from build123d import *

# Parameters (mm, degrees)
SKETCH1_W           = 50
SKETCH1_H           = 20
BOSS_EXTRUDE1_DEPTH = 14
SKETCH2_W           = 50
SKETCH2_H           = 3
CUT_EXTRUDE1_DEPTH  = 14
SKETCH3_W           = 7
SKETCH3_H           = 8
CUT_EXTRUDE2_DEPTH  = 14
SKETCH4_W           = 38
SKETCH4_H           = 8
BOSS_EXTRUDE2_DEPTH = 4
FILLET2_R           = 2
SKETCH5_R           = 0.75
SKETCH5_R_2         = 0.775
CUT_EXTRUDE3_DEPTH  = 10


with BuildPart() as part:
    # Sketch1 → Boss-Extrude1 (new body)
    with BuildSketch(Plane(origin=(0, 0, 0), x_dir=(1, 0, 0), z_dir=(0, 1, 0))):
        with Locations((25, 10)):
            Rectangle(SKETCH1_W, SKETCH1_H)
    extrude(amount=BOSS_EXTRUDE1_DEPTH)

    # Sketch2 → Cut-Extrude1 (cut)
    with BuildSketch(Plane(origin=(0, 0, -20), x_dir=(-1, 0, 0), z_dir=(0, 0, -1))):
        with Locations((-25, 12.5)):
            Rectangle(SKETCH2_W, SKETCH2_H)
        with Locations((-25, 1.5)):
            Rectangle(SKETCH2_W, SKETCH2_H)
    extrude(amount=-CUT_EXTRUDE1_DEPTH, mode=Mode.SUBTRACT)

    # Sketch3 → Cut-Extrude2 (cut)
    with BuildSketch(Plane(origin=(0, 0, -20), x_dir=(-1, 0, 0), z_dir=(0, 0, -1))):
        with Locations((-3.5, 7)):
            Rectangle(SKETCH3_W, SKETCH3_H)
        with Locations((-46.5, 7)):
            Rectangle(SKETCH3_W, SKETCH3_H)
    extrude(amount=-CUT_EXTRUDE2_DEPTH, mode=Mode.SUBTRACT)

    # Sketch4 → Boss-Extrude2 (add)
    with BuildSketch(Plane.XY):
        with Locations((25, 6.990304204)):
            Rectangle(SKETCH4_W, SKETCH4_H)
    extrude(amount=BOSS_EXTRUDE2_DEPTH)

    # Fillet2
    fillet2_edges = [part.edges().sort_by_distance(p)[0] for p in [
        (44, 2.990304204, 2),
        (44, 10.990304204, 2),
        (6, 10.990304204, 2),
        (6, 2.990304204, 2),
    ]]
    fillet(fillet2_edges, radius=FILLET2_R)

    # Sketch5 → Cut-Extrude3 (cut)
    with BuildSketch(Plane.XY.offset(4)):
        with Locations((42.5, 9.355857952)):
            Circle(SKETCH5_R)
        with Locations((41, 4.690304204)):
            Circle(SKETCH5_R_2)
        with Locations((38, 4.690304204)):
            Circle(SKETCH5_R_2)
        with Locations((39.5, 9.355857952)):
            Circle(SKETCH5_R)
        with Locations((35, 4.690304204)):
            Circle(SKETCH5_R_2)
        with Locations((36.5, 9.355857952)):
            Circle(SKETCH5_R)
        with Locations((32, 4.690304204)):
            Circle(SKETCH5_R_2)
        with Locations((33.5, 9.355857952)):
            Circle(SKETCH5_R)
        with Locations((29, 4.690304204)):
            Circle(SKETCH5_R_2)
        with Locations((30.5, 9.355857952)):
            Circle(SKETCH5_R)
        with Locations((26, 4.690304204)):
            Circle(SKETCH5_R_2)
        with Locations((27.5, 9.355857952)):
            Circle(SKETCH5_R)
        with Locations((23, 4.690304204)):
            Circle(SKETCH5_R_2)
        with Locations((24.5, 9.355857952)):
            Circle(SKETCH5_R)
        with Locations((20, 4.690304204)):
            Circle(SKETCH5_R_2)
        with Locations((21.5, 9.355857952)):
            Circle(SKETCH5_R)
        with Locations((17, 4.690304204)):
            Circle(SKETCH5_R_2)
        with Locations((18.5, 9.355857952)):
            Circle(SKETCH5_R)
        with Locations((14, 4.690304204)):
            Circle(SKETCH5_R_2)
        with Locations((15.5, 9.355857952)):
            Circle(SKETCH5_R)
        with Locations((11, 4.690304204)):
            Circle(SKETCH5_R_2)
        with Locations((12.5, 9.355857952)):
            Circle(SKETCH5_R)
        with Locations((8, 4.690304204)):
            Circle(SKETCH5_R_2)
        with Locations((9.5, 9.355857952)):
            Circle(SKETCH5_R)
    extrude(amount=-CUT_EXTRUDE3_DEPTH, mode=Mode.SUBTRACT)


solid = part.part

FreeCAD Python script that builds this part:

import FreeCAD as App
import Part
import Sketcher

V = App.Vector


def edges_at(feature, points):
    """Names of the edges that pass closest to the given points."""
    edges = feature.Shape.Edges
    near = lambda p: min(range(len(edges)), key=lambda i: edges[i].distToShape(Part.Vertex(*p))[0])
    return sorted({f"Edge{near(p) + 1}" for p in points})


def add_polygon(sketch, points):
    """Adds a closed chain of lines whose ends are joined by coincident constraints."""
    first, n = sketch.GeometryCount, len(points)
    for a, b in zip(points, points[1:] + points[:1]):
        sketch.addGeometry(Part.LineSegment(App.Vector(*a, 0), App.Vector(*b, 0)), False)
    for i in range(n):
        sketch.addConstraint(Sketcher.Constraint("Coincident", first + i, 2, first + (i + 1) % n, 1))

doc = App.newDocument("Part")
body = doc.addObject("PartDesign::Body", "Body")

sketch1 = body.newObject("Sketcher::SketchObject", "Sketch")
sketch1.AttachmentSupport = (doc.getObject("XZ_Plane"), [""])
sketch1.MapMode = "FlatFace"
add_polygon(sketch1, [(0, -20), (0, 0), (50, 0), (50, -20)])
sketch1.addConstraint([
    Sketcher.Constraint("Vertical", 0),
    Sketcher.Constraint("Horizontal", 1),
    Sketcher.Constraint("Vertical", 2),
    Sketcher.Constraint("Horizontal", 3),
    Sketcher.Constraint("Coincident", 0, 2, -1, 1),
    Sketcher.Constraint("DistanceX", 1, 1, 1, 2, 50.0),
    Sketcher.Constraint("DistanceY", 0, 1, 0, 2, 20.0),
])
pad1 = body.newObject("PartDesign::Pad", "Pad")
pad1.Profile = sketch1
pad1.Length = 14
pad1.Reversed = True

sketch2 = body.newObject("Sketcher::SketchObject", "Sketch001")
sketch2.AttachmentSupport = (doc.getObject("XY_Plane"), [""])
sketch2.MapMode = "FlatFace"
sketch2.AttachmentOffset = App.Placement(V(0, 0, -20), App.Rotation())
add_polygon(sketch2, [(50, 14), (50, 11), (0, 11), (0, 14)])
add_polygon(sketch2, [(50, 3), (50, 0), (0, 0), (0, 3)])
sketch2.addConstraint([
    Sketcher.Constraint("Vertical", 0),
    Sketcher.Constraint("Horizontal", 1),
    Sketcher.Constraint("Vertical", 2),
    Sketcher.Constraint("Horizontal", 3),
    Sketcher.Constraint("Vertical", 4),
    Sketcher.Constraint("Horizontal", 5),
    Sketcher.Constraint("Vertical", 6),
    Sketcher.Constraint("Horizontal", 7),
    Sketcher.Constraint("Coincident", 5, 2, -1, 1),
    Sketcher.Constraint("PointOnObject", 1, 2, -2),
    Sketcher.Constraint("Vertical", 3, 2, 4, 2),
    Sketcher.Constraint("Equal", 2, 4),
    Sketcher.Constraint("DistanceX", 1, 2, 1, 1, 50.0),
    Sketcher.Constraint("DistanceY", 0, 2, 0, 1, 3.0),
    Sketcher.Constraint("DistanceY", -1, 1, 0, 2, 11.0),
])
pocket1 = body.newObject("PartDesign::Pocket", "Pocket")
pocket1.Profile = sketch2
pocket1.Length = 14
pocket1.Reversed = True

sketch3 = body.newObject("Sketcher::SketchObject", "Sketch002")
sketch3.AttachmentSupport = (doc.getObject("XY_Plane"), [""])
sketch3.MapMode = "FlatFace"
sketch3.AttachmentOffset = App.Placement(V(0, 0, -20), App.Rotation())
add_polygon(sketch3, [(7, 11), (7, 3), (0, 3), (0, 11)])
add_polygon(sketch3, [(50, 11), (50, 3), (43, 3), (43, 11)])
sketch3.addConstraint([
    Sketcher.Constraint("Vertical", 0),
    Sketcher.Constraint("Horizontal", 1),
    Sketcher.Constraint("Vertical", 2),
    Sketcher.Constraint("Horizontal", 3),
    Sketcher.Constraint("Vertical", 4),
    Sketcher.Constraint("Horizontal", 5),
    Sketcher.Constraint("Vertical", 6),
    Sketcher.Constraint("Horizontal", 7),
    Sketcher.Constraint("PointOnObject", 1, 2, -2),
    Sketcher.Constraint("Horizontal", 1, 2, 4, 2),
    Sketcher.Constraint("Horizontal", 3, 2, 6, 2),
    Sketcher.Constraint("Equal", 3, 5),
    Sketcher.Constraint("DistanceX", 1, 2, 1, 1, 7.0),
    Sketcher.Constraint("DistanceY", 0, 2, 0, 1, 8.0),
    Sketcher.Constraint("DistanceY", -1, 1, 0, 2, 3.0),
    Sketcher.Constraint("DistanceX", -1, 1, 4, 2, 50.0),
])
pocket2 = body.newObject("PartDesign::Pocket", "Pocket001")
pocket2.Profile = sketch3
pocket2.Length = 14
pocket2.Reversed = True

sketch4 = body.newObject("Sketcher::SketchObject", "Sketch003")
sketch4.AttachmentSupport = (doc.getObject("XY_Plane"), [""])
sketch4.MapMode = "FlatFace"
add_polygon(sketch4, [(6, 11), (6, 3), (44, 3), (44, 11)])
sketch4.addConstraint([
    Sketcher.Constraint("Vertical", 0),
    Sketcher.Constraint("Horizontal", 1),
    Sketcher.Constraint("Vertical", 2),
    Sketcher.Constraint("Horizontal", 3),
    Sketcher.Constraint("DistanceX", 1, 1, 1, 2, 38.0),
    Sketcher.Constraint("DistanceY", 0, 2, 0, 1, 8.0),
    Sketcher.Constraint("DistanceX", -1, 1, 0, 2, 6.0),
    Sketcher.Constraint("DistanceY", -1, 1, 0, 2, 2.990304),
])
pad2 = body.newObject("PartDesign::Pad", "Pad001")
pad2.Profile = sketch4
pad2.Length = 4
doc.recompute()

fillet = body.newObject("PartDesign::Fillet", "Fillet")
fillet.Base = (pad2, edges_at(pad2, [
    (44, 2.99, 2),
    (44, 10.99, 2),
    (6, 10.99, 2),
    (6, 2.99, 2),
]))
fillet.Radius = 2

sketch5 = body.newObject("Sketcher::SketchObject", "Sketch004")
sketch5.AttachmentSupport = (doc.getObject("XY_Plane"), [""])
sketch5.MapMode = "FlatFace"
sketch5.AttachmentOffset = App.Placement(V(0, 0, 4), App.Rotation())
sketch5.addGeometry([
    Part.Circle(V(42.5, 9.4, 0), V(0, 0, 1), 0.8),
    Part.Circle(V(41, 4.7, 0), V(0, 0, 1), 0.8),
    Part.Circle(V(38, 4.7, 0), V(0, 0, 1), 0.8),
    Part.Circle(V(39.5, 9.4, 0), V(0, 0, 1), 0.8),
    Part.Circle(V(35, 4.7, 0), V(0, 0, 1), 0.8),
    Part.Circle(V(36.5, 9.4, 0), V(0, 0, 1), 0.8),
    Part.Circle(V(32, 4.7, 0), V(0, 0, 1), 0.8),
    Part.Circle(V(33.5, 9.4, 0), V(0, 0, 1), 0.8),
    Part.Circle(V(29, 4.7, 0), V(0, 0, 1), 0.8),
    Part.Circle(V(30.5, 9.4, 0), V(0, 0, 1), 0.8),
    Part.Circle(V(26, 4.7, 0), V(0, 0, 1), 0.8),
    Part.Circle(V(27.5, 9.4, 0), V(0, 0, 1), 0.8),
    Part.Circle(V(23, 4.7, 0), V(0, 0, 1), 0.8),
    Part.Circle(V(24.5, 9.4, 0), V(0, 0, 1), 0.8),
    Part.Circle(V(20, 4.7, 0), V(0, 0, 1), 0.8),
    Part.Circle(V(21.5, 9.4, 0), V(0, 0, 1), 0.8),
    Part.Circle(V(17, 4.7, 0), V(0, 0, 1), 0.8),
    Part.Circle(V(18.5, 9.4, 0), V(0, 0, 1), 0.8),
    Part.Circle(V(14, 4.7, 0), V(0, 0, 1), 0.8),
    Part.Circle(V(15.5, 9.4, 0), V(0, 0, 1), 0.8),
    Part.Circle(V(11, 4.7, 0), V(0, 0, 1), 0.8),
    Part.Circle(V(12.5, 9.4, 0), V(0, 0, 1), 0.8),
    Part.Circle(V(8, 4.7, 0), V(0, 0, 1), 0.8),
    Part.Circle(V(9.5, 9.4, 0), V(0, 0, 1), 0.8),
], False)
sketch5.addConstraint([
    Sketcher.Constraint("Equal", 1, 2),
    Sketcher.Constraint("Equal", 0, 3),
    Sketcher.Constraint("Equal", 2, 4),
    Sketcher.Constraint("Equal", 3, 5),
    Sketcher.Constraint("Equal", 4, 6),
    Sketcher.Constraint("Equal", 5, 7),
    Sketcher.Constraint("Equal", 6, 8),
    Sketcher.Constraint("Equal", 7, 9),
    Sketcher.Constraint("Equal", 8, 10),
    Sketcher.Constraint("Equal", 9, 11),
    Sketcher.Constraint("Equal", 10, 12),
    Sketcher.Constraint("Equal", 11, 13),
    Sketcher.Constraint("Equal", 12, 14),
    Sketcher.Constraint("Equal", 13, 15),
    Sketcher.Constraint("Equal", 14, 16),
    Sketcher.Constraint("Equal", 15, 17),
    Sketcher.Constraint("Equal", 16, 18),
    Sketcher.Constraint("Equal", 17, 19),
    Sketcher.Constraint("Equal", 18, 20),
    Sketcher.Constraint("Equal", 19, 21),
    Sketcher.Constraint("Equal", 20, 22),
    Sketcher.Constraint("Equal", 21, 23),
    Sketcher.Constraint("Horizontal", 1, 3, 2, 3),
    Sketcher.Constraint("Horizontal", 0, 3, 3, 3),
    Sketcher.Constraint("Horizontal", 2, 3, 4, 3),
    Sketcher.Constraint("Horizontal", 3, 3, 5, 3),
    Sketcher.Constraint("Horizontal", 4, 3, 6, 3),
    Sketcher.Constraint("Horizontal", 5, 3, 7, 3),
    Sketcher.Constraint("Horizontal", 6, 3, 8, 3),
    Sketcher.Constraint("Horizontal", 7, 3, 9, 3),
    Sketcher.Constraint("Horizontal", 8, 3, 10, 3),
    Sketcher.Constraint("Horizontal", 9, 3, 11, 3),
    Sketcher.Constraint("Horizontal", 10, 3, 12, 3),
    Sketcher.Constraint("Horizontal", 11, 3, 13, 3),
    Sketcher.Constraint("Horizontal", 12, 3, 14, 3),
    Sketcher.Constraint("Horizontal", 13, 3, 15, 3),
    Sketcher.Constraint("Horizontal", 14, 3, 16, 3),
    Sketcher.Constraint("Horizontal", 15, 3, 17, 3),
    Sketcher.Constraint("Horizontal", 16, 3, 18, 3),
    Sketcher.Constraint("Horizontal", 17, 3, 19, 3),
    Sketcher.Constraint("Horizontal", 18, 3, 20, 3),
    Sketcher.Constraint("Horizontal", 19, 3, 21, 3),
    Sketcher.Constraint("Horizontal", 20, 3, 22, 3),
    Sketcher.Constraint("Horizontal", 21, 3, 23, 3),
    Sketcher.Constraint("Diameter", 0, 1.5),
    Sketcher.Constraint("Diameter", 1, 1.55),
    Sketcher.Constraint("DistanceX", -1, 1, 1, 3, 41.0),
    Sketcher.Constraint("DistanceX", -1, 1, 2, 3, 38.0),
    Sketcher.Constraint("DistanceX", -1, 1, 4, 3, 35.0),
    Sketcher.Constraint("DistanceX", -1, 1, 6, 3, 32.0),
    Sketcher.Constraint("DistanceX", -1, 1, 8, 3, 29.0),
    Sketcher.Constraint("DistanceX", -1, 1, 10, 3, 26.0),
    Sketcher.Constraint("DistanceX", -1, 1, 12, 3, 23.0),
    Sketcher.Constraint("DistanceX", -1, 1, 14, 3, 20.0),
    Sketcher.Constraint("DistanceX", -1, 1, 16, 3, 17.0),
    Sketcher.Constraint("DistanceX", -1, 1, 18, 3, 14.0),
    Sketcher.Constraint("DistanceX", -1, 1, 20, 3, 11.0),
    Sketcher.Constraint("DistanceX", -1, 1, 22, 3, 8.0),
    Sketcher.Constraint("DistanceX", 3, 3, 0, 3, 3.0),
    Sketcher.Constraint("DistanceX", 5, 3, 3, 3, 3.0),
    Sketcher.Constraint("DistanceX", 7, 3, 5, 3, 3.0),
    Sketcher.Constraint("DistanceX", 9, 3, 7, 3, 3.0),
    Sketcher.Constraint("DistanceX", 11, 3, 9, 3, 3.0),
    Sketcher.Constraint("DistanceX", 13, 3, 11, 3, 3.0),
    Sketcher.Constraint("DistanceX", 15, 3, 13, 3, 3.0),
    Sketcher.Constraint("DistanceX", 17, 3, 15, 3, 3.0),
    Sketcher.Constraint("DistanceX", 19, 3, 17, 3, 3.0),
    Sketcher.Constraint("DistanceX", 21, 3, 19, 3, 3.0),
    Sketcher.Constraint("DistanceX", 23, 3, 21, 3, 3.0),
    Sketcher.Constraint("DistanceX", -1, 1, 0, 3, 42.5),
    Sketcher.Constraint("DistanceY", -1, 1, 0, 3, 9.355858),
    Sketcher.Constraint("DistanceY", -1, 1, 1, 3, 4.690304),
])
pocket3 = body.newObject("PartDesign::Pocket", "Pocket002")
pocket3.Profile = sketch5
pocket3.Length = 10

doc.recompute()
